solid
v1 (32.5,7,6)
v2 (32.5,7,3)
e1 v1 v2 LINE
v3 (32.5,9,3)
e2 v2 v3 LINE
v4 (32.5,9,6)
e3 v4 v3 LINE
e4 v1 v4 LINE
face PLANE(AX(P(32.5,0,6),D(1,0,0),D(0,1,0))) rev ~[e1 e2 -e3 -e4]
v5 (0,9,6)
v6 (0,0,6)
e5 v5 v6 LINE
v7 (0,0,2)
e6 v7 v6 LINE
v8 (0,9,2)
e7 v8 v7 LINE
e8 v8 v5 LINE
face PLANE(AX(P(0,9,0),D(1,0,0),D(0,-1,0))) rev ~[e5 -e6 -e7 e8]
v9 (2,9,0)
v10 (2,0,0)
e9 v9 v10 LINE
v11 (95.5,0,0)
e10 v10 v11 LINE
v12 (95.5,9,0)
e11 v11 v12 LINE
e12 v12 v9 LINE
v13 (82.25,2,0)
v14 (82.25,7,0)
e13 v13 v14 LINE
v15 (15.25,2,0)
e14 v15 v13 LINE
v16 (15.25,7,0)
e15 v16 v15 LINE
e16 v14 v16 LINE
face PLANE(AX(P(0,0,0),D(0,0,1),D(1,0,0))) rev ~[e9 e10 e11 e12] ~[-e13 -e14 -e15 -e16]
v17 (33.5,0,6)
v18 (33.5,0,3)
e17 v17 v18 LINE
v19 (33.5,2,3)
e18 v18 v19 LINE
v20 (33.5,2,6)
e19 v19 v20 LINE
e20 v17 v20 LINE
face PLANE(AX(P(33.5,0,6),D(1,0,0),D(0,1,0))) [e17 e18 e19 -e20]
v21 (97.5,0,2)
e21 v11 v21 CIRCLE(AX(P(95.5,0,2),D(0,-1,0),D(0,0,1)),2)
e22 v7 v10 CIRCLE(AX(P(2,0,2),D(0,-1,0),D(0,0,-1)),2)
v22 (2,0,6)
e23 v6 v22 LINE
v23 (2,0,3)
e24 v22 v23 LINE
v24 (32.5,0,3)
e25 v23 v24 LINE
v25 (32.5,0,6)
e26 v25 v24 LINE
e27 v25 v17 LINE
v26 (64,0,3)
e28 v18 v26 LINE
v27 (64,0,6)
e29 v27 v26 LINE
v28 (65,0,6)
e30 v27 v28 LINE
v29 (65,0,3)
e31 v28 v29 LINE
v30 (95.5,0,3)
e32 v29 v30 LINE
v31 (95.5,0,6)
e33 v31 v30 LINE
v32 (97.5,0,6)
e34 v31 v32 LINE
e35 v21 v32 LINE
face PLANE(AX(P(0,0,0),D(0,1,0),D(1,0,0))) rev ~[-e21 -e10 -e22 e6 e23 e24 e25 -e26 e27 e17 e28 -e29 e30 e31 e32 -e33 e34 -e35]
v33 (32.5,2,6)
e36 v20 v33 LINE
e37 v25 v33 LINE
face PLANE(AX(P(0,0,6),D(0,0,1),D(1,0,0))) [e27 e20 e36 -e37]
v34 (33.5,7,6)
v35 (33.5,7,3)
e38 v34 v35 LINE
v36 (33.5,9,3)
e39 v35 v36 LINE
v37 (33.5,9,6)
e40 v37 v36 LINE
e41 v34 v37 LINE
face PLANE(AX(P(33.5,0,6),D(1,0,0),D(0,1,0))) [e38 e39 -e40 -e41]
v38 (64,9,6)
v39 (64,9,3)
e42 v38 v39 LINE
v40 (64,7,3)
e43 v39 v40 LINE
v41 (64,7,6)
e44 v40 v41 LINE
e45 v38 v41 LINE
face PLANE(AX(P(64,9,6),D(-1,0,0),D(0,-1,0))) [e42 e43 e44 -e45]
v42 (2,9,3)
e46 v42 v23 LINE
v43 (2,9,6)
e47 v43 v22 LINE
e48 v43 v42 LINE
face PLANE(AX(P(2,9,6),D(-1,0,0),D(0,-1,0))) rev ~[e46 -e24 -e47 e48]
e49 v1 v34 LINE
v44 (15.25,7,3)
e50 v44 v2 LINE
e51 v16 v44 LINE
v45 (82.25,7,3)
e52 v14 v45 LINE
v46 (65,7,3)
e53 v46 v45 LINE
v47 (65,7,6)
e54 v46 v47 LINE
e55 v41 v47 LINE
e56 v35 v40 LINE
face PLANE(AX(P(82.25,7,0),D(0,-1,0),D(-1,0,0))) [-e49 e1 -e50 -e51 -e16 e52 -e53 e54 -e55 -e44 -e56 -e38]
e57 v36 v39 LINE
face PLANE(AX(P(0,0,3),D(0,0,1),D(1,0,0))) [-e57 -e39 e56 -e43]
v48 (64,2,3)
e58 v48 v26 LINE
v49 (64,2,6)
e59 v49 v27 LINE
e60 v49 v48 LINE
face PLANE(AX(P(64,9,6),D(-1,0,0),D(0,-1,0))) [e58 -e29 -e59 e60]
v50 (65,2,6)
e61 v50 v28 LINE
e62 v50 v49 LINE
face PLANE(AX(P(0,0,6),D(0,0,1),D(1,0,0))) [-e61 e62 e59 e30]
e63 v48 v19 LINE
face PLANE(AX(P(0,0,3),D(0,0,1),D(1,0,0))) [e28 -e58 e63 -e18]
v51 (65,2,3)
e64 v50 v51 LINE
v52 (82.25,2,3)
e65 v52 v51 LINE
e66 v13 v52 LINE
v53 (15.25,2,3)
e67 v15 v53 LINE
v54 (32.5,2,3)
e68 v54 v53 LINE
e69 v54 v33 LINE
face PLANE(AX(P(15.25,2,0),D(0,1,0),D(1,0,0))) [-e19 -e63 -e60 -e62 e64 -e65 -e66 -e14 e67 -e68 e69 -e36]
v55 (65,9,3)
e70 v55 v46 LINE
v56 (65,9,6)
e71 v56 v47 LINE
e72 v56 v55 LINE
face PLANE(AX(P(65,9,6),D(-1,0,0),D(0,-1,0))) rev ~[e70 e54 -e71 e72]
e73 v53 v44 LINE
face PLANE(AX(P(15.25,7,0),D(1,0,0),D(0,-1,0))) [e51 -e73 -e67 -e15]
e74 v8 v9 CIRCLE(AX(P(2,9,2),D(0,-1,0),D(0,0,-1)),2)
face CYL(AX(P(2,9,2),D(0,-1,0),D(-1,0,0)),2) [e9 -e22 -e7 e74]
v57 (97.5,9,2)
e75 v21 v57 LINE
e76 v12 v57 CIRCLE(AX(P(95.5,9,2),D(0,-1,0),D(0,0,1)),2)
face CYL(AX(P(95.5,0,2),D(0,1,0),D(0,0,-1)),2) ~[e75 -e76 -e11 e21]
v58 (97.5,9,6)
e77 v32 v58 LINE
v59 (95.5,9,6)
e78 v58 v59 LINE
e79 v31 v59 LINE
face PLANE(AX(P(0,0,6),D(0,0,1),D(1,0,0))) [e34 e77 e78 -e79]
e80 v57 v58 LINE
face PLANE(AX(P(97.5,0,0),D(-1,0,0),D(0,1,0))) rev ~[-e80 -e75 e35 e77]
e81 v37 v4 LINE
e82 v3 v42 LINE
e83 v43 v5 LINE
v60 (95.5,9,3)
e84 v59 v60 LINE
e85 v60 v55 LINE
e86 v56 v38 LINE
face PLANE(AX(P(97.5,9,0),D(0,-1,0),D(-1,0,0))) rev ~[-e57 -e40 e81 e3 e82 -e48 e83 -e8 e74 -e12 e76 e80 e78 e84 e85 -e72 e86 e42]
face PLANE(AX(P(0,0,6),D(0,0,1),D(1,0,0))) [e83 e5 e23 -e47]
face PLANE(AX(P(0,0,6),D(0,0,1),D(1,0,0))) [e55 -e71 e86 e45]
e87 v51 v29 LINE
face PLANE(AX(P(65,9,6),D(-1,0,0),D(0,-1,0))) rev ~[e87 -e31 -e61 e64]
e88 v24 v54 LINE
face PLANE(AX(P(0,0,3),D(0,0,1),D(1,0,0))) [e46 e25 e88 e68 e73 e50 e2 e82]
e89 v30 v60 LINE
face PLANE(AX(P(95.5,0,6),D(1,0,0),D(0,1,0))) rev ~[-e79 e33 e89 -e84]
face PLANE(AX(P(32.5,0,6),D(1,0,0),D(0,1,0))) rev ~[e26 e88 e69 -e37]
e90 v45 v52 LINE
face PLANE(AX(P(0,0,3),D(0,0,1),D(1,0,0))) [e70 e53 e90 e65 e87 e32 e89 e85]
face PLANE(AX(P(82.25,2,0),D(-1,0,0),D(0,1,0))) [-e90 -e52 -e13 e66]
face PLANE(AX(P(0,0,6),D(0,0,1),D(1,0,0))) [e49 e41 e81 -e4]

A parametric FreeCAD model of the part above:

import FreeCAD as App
import Part
import Sketcher
from FreeCAD import Vector


def edges_at(feature, points):
    """Names of the edges that pass closest to the given points."""
    edges = feature.Shape.Edges
    near = lambda p: min(range(len(edges)), key=lambda i: edges[i].distToShape(Part.Vertex(*p))[0])
    return sorted({f"Edge{near(p) + 1}" for p in points})


def add_polygon(sketch, points):
    """Adds a closed chain of lines whose ends are joined by coincident constraints."""
    first, n = sketch.GeometryCount, len(points)
    for a, b in zip(points, points[1:] + points[:1]):
        sketch.addGeometry(Part.LineSegment(App.Vector(*a, 0), App.Vector(*b, 0)), False)
    for i in range(n):
        sketch.addConstraint(Sketcher.Constraint("Coincident", first + i, 2, first + (i + 1) % n, 1))

doc = App.newDocument("Part")
body = doc.addObject("PartDesign::Body", "Body")

# Sketch on XY plane
sketch1 = body.newObject("Sketcher::SketchObject", "Sketch")
sketch1.AttachmentSupport = (doc.getObject("XY_Plane"), [""])
sketch1.MapMode = "FlatFace"
add_polygon(sketch1, [(0, 9), (0, 0), (98, 0), (98, 9)])  # lines 0-3
sketch1.addConstraint([
    Sketcher.Constraint("Vertical", 0),
    Sketcher.Constraint("Horizontal", 1),
    Sketcher.Constraint("Vertical", 2),
    Sketcher.Constraint("Horizontal", 3),
    Sketcher.Constraint("Coincident", 0, 2, -1, 1),
    Sketcher.Constraint("DistanceY", 0, 2, 0, 1, 9.0),
    Sketcher.Constraint("DistanceX", 1, 1, 1, 2, 97.5),
])
pad1 = body.newObject("PartDesign::Pad", "Pad")
pad1.Profile = sketch1
pad1.Length = 6

# Sketch on XY plane
sketch2 = body.newObject("Sketcher::SketchObject", "Sketch001")
sketch2.AttachmentSupport = (doc.getObject("XY_Plane"), [""])
sketch2.MapMode = "FlatFace"
sketch2.AttachmentOffset = App.Placement(Vector(0, 0, 6), App.Rotation())
add_polygon(sketch2, [(2, 9), (2, 0), (32, 0), (32, 9)])  # lines 0-3
add_polygon(sketch2, [(34, 9), (34, 0), (64, 0), (64, 9)])  # lines 4-7
add_polygon(sketch2, [(65, 9), (65, 0), (96, 0), (96, 9)])  # lines 8-11
sketch2.addConstraint([
    Sketcher.Constraint("Vertical", 0),
    Sketcher.Constraint("Horizontal", 1),
    Sketcher.Constraint("Vertical", 2),
    Sketcher.Constraint("Horizontal", 3),
    Sketcher.Constraint("Vertical", 4),
    Sketcher.Constraint("Horizontal", 5),
    Sketcher.Constraint("Vertical", 6),
    Sketcher.Constraint("Horizontal", 7),
    Sketcher.Constraint("Vertical", 8),
    Sketcher.Constraint("Horizontal", 9),
    Sketcher.Constraint("Vertical", 10),
    Sketcher.Constraint("Horizontal", 11),
    Sketcher.Constraint("PointOnObject", 0, 2, -1),
    Sketcher.Constraint("PointOnObject", 4, 2, -1),
    Sketcher.Constraint("PointOnObject", 8, 2, -1),
    Sketcher.Constraint("Horizontal", 3, 2, 6, 2),
    Sketcher.Constraint("Horizontal", 7, 2, 10, 2),
    Sketcher.Constraint("Equal", 3, 5),
    Sketcher.Constraint("Equal", 7, 9),
    Sketcher.Constraint("DistanceX", 1, 1, 1, 2, 30.5),
    Sketcher.Constraint("DistanceX", -1, 1, 0, 2, 2.0),
    Sketcher.Constraint("DistanceX", 1, 2, 4, 2, 1.0),
    Sketcher.Constraint("DistanceX", 5, 2, 8, 2, 1.0),
    Sketcher.Constraint("DistanceY", 0, 2, 0, 1, 9.0),
])
pocket1 = body.newObject("PartDesign::Pocket", "Pocket")
pocket1.Profile = sketch2
pocket1.Length = 3

# Sketch on XY plane
sketch3 = body.newObject("Sketcher::SketchObject", "Sketch002")
sketch3.AttachmentSupport = (doc.getObject("XY_Plane"), [""])
sketch3.MapMode = "FlatFace"
add_polygon(sketch3, [(15, 7), (82, 7), (82, 2), (15, 2)])  # lines 0-3
sketch3.addConstraint([
    Sketcher.Constraint("Horizontal", 0),
    Sketcher.Constraint("Vertical", 1),
    Sketcher.Constraint("Horizontal", 2),
    Sketcher.Constraint("Vertical", 3),
    Sketcher.Constraint("DistanceX", 0, 1, 0, 2, 67.0),
    Sketcher.Constraint("DistanceY", 1, 2, 1, 1, 5.0),
    Sketcher.Constraint("DistanceY", -1, 1, 0, 2, 7.0),
    Sketcher.Constraint("DistanceX", -1, 1, 0, 2, 82.25),
])
pocket2 = body.newObject("PartDesign::Pocket", "Pocket001")
pocket2.Profile = sketch3
pocket2.Length = 10
pocket2.Reversed = True
doc.recompute()

fillet = body.newObject("PartDesign::Fillet", "Fillet")
fillet.Base = (pocket2, edges_at(pocket2, [(97.5, 4.5, 0), (0, 4.5, 0)]))
fillet.Radius = 2

doc.recompute()
